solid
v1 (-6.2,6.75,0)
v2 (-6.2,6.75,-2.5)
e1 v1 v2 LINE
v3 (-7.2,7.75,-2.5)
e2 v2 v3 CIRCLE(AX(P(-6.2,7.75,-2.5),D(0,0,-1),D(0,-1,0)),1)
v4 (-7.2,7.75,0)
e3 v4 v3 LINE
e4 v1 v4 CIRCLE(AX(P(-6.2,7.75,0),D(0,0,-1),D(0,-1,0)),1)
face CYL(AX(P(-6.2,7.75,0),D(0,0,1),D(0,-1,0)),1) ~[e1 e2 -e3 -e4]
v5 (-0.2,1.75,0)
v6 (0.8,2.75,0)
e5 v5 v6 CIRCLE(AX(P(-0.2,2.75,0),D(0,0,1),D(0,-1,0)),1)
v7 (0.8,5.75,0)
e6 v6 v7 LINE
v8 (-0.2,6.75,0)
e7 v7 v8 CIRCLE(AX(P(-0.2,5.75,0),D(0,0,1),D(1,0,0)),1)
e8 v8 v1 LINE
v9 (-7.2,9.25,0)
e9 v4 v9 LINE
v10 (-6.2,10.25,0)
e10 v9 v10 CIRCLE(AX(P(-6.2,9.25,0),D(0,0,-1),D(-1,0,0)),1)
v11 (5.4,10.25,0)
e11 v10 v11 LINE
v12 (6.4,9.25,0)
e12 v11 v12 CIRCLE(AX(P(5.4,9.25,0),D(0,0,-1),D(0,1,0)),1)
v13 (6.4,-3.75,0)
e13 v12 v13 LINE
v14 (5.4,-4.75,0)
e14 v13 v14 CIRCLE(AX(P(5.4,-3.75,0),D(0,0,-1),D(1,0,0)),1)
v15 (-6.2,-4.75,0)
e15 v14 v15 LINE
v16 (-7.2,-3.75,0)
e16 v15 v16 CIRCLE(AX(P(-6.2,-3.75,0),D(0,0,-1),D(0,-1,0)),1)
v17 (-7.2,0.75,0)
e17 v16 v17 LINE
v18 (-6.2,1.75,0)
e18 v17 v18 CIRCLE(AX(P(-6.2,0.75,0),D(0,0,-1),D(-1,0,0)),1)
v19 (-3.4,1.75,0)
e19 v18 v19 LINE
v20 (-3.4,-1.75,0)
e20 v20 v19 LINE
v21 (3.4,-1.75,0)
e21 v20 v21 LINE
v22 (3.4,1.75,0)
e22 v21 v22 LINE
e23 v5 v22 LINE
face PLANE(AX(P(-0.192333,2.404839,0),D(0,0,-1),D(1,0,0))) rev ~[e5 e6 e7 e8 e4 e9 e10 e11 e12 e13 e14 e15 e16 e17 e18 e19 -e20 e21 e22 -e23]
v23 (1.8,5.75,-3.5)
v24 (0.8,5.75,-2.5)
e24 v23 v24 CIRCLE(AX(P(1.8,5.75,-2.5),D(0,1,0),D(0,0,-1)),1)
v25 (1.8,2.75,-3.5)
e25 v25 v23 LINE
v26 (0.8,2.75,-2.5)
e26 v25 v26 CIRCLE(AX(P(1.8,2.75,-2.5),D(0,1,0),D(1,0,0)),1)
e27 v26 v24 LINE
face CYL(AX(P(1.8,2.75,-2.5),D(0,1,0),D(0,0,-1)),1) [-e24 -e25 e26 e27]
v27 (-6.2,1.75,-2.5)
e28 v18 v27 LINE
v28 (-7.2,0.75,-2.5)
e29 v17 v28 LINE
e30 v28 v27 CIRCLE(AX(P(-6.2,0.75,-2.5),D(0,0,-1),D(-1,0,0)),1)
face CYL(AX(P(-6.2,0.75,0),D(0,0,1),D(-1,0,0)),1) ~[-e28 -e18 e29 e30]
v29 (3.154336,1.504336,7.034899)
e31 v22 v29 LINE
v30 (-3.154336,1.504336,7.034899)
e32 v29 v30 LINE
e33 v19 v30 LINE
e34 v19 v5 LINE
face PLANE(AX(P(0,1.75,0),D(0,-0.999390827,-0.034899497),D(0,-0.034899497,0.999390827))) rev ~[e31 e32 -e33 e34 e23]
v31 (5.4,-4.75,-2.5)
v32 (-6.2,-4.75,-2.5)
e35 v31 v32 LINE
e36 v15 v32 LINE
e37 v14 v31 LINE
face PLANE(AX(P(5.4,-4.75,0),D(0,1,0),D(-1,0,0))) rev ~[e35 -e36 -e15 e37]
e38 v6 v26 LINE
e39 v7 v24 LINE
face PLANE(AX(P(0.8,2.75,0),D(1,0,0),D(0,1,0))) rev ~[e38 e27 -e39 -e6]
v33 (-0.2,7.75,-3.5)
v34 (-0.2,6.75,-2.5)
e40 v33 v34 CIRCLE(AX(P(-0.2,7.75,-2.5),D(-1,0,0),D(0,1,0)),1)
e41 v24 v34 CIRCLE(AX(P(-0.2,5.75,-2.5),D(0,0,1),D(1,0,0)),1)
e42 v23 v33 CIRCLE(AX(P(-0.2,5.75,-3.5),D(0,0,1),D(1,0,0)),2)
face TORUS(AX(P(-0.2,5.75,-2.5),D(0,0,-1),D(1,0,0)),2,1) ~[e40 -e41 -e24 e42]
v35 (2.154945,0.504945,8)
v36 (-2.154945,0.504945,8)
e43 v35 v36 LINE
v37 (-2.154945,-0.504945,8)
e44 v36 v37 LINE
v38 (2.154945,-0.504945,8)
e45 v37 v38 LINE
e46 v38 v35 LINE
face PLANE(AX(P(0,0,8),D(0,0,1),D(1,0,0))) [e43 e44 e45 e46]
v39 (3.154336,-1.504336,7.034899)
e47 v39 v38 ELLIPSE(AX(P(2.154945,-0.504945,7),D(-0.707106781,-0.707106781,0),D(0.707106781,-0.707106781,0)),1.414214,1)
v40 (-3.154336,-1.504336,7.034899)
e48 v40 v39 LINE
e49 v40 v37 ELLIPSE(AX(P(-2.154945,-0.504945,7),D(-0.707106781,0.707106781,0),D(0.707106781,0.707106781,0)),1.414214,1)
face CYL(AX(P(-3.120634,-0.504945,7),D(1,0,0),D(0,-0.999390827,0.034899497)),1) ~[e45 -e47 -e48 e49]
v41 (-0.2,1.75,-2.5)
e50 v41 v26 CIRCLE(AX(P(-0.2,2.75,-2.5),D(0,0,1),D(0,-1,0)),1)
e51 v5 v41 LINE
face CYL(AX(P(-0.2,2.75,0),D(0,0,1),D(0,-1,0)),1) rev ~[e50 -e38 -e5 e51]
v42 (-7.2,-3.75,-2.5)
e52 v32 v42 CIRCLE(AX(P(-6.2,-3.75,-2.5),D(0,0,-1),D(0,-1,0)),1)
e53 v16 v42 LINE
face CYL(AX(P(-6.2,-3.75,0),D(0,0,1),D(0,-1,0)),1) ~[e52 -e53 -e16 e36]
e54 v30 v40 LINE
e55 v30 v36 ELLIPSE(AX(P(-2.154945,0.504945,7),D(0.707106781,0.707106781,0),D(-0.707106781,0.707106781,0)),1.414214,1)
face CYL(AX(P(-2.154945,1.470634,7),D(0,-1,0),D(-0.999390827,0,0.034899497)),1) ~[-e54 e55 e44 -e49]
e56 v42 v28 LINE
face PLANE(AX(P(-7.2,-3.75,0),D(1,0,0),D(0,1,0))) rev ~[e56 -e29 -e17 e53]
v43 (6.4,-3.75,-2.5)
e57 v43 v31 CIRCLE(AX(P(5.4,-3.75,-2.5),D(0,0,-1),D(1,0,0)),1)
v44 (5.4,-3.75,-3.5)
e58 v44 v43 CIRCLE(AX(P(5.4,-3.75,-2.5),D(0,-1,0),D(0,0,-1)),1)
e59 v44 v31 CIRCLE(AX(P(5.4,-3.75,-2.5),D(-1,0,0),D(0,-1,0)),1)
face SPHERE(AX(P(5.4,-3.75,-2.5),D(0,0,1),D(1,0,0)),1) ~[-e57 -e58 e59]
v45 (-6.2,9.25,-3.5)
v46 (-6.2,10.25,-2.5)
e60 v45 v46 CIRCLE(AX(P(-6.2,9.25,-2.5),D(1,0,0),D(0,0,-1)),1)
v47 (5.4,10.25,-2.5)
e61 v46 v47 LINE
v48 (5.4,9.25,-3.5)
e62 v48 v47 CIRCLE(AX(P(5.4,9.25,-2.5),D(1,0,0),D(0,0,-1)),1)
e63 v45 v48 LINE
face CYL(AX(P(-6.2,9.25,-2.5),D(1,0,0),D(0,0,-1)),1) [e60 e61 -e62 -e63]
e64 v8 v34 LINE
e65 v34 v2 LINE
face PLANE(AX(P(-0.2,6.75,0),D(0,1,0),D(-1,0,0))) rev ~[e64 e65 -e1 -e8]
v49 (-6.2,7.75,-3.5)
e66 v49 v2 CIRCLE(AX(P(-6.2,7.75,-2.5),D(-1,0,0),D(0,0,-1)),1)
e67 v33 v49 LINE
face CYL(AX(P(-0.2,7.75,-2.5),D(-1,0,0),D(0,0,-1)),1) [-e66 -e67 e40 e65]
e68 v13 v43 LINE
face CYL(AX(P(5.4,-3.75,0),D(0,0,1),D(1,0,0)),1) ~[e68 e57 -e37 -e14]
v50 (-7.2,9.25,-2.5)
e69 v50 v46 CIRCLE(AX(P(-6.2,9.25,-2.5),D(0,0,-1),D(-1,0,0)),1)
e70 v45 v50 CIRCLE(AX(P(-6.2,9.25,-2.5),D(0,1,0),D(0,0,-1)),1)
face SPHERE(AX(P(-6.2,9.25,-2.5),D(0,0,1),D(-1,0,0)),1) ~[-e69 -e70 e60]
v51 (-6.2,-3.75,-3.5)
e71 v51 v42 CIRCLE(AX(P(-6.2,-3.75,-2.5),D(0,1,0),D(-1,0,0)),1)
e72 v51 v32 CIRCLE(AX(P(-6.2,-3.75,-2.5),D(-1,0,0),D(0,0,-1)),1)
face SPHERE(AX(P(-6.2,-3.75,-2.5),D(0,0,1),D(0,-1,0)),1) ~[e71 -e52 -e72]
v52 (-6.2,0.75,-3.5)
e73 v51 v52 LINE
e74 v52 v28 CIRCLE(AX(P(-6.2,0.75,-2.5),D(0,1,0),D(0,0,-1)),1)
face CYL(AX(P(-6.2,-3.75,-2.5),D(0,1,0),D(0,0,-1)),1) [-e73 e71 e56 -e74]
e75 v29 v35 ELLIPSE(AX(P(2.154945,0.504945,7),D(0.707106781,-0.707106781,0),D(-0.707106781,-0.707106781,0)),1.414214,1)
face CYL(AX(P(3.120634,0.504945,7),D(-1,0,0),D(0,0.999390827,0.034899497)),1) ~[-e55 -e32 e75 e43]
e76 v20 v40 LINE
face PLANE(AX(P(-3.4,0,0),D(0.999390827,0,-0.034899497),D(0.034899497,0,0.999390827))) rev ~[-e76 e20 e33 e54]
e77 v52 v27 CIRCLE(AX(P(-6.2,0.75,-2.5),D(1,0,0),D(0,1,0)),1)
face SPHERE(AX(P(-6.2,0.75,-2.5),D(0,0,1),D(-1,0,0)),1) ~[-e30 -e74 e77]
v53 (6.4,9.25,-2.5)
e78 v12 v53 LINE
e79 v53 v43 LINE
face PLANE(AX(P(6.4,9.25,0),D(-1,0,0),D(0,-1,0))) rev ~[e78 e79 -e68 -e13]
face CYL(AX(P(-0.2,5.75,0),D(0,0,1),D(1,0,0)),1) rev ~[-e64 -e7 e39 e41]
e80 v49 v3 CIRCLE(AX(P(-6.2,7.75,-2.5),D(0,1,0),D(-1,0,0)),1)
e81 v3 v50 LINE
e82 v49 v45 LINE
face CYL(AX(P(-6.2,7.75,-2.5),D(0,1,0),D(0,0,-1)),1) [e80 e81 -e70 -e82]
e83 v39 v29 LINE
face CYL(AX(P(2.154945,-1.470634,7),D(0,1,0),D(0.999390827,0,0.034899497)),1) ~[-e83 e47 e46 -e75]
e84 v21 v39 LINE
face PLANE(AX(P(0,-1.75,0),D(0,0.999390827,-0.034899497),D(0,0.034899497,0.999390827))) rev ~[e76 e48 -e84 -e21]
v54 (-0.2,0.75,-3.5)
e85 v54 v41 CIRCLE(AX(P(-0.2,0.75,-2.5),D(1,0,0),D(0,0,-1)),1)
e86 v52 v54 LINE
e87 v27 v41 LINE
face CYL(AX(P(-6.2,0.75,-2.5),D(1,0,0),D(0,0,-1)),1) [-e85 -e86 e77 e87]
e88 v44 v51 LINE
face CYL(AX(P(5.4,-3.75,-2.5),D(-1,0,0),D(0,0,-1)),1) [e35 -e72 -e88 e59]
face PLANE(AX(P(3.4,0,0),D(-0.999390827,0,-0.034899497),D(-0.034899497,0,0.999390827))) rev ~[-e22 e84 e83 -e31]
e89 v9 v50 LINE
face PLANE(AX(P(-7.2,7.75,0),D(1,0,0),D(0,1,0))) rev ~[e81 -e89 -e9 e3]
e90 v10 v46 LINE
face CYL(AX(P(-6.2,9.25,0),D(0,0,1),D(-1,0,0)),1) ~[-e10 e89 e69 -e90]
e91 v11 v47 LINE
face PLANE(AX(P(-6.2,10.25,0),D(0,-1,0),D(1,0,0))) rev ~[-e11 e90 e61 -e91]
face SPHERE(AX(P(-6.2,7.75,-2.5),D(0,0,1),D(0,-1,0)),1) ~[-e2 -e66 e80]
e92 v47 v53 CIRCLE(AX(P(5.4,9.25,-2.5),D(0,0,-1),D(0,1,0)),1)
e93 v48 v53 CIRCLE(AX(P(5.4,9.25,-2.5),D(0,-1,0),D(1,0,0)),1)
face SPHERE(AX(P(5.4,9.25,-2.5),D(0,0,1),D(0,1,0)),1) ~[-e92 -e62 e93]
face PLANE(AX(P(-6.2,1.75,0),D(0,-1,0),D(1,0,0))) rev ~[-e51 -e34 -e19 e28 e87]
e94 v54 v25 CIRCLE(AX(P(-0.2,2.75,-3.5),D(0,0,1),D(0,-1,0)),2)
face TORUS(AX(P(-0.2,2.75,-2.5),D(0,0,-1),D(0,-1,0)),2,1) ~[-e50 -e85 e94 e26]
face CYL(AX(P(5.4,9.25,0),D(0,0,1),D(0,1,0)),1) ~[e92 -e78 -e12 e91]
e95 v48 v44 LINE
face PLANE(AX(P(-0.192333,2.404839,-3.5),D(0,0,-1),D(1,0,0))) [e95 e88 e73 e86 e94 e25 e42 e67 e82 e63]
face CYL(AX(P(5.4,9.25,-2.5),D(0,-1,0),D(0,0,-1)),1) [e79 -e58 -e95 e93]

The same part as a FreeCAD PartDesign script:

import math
import FreeCAD as App
import Part
import Sketcher

V = App.Vector


def edges_at(feature, points):
    """Names of the edges that pass closest to the given points."""
    edges = feature.Shape.Edges
    near = lambda p: min(range(len(edges)), key=lambda i: edges[i].distToShape(Part.Vertex(*p))[0])
    return sorted({f"Edge{near(p) + 1}" for p in points})

doc = App.newDocument("Part")
body = doc.addObject("PartDesign::Body", "Body")

# Sketch on XY plane
sketch1 = doc.addObject("Sketcher::SketchObject", "Sketch")
body.addObject(sketch1)
sketch1.AttachmentSupport = (doc.XY_Plane, [""])
sketch1.MapMode = "FlatFace"
sketch1.addGeometry(Part.LineSegment(V(-3.4, 1.75, 0), V(-3.4, -1.75, 0)), False)
sketch1.addGeometry(Part.LineSegment(V(-3.4, -1.75, 0), V(3.4, -1.75, 0)), False)
sketch1.addGeometry(Part.LineSegment(V(3.4, -1.75, 0), V(3.4, 1.75, 0)), False)
sketch1.addGeometry(Part.LineSegment(V(3.4, 1.75, 0), V(-3.4, 1.75, 0)), False)
sketch1.addConstraint(Sketcher.Constraint("Coincident", 0, 2, 1, 1))
sketch1.addConstraint(Sketcher.Constraint("Coincident", 1, 2, 2, 1))
sketch1.addConstraint(Sketcher.Constraint("Coincident", 2, 2, 3, 1))
sketch1.addConstraint(Sketcher.Constraint("Coincident", 3, 2, 0, 1))
sketch1.addConstraint(Sketcher.Constraint("Vertical", 0))
sketch1.addConstraint(Sketcher.Constraint("Horizontal", 1))
sketch1.addConstraint(Sketcher.Constraint("Vertical", 2))
sketch1.addConstraint(Sketcher.Constraint("Horizontal", 3))
sketch1.addConstraint(Sketcher.Constraint("Symmetric", 0, 2, 2, 2, -1, 1))
sketch1.addConstraint(Sketcher.Constraint("DistanceX", 1, 1, 1, 2, 6.8))
sketch1.addConstraint(Sketcher.Constraint("DistanceY", 0, 2, 0, 1, 3.5))
pad1 = doc.addObject("PartDesign::Pad", "Pad")
body.addObject(pad1)
pad1.Profile = sketch1
pad1.Length = 8
pad1.TaperAngle = -2

# Sketch on XY plane
sketch2 = doc.addObject("Sketcher::SketchObject", "Sketch001")
body.addObject(sketch2)
sketch2.AttachmentSupport = (doc.XY_Plane, [""])
sketch2.MapMode = "FlatFace"
sketch2.addGeometry(Part.ArcOfCircle(Part.Circle(V(-0.2, 2.75, 0), V(0, 0, 1), 1), math.radians(-90), math.radians(0)), False)
sketch2.addGeometry(Part.LineSegment(V(0.8, 2.75, 0), V(0.8, 5.75, 0)), False)
sketch2.addGeometry(Part.ArcOfCircle(Part.Circle(V(-0.2, 5.75, 0), V(0, 0, 1), 1), math.radians(0), math.radians(90)), False)
sketch2.addGeometry(Part.LineSegment(V(-0.2, 6.75, 0), V(-6.2, 6.75, 0)), False)
sketch2.addGeometry(Part.ArcOfCircle(Part.Circle(V(-6.2, 7.75, 0), V(0, 0, 1), 1), math.radians(180), math.radians(270)), False)
sketch2.addGeometry(Part.LineSegment(V(-7.2, 7.75, 0), V(-7.2, 9.25, 0)), False)
sketch2.addGeometry(Part.ArcOfCircle(Part.Circle(V(-6.2, 9.25, 0), V(0, 0, 1), 1), math.radians(90), math.radians(180)), False)
sketch2.addGeometry(Part.LineSegment(V(-6.2, 10.25, 0), V(5.4, 10.25, 0)), False)
sketch2.addGeometry(Part.ArcOfCircle(Part.Circle(V(5.4, 9.25, 0), V(0, 0, 1), 1), math.radians(0), math.radians(90)), False)
sketch2.addGeometry(Part.LineSegment(V(6.4, 9.25, 0), V(6.4, -3.75, 0)), False)
sketch2.addGeometry(Part.ArcOfCircle(Part.Circle(V(5.4, -3.75, 0), V(0, 0, 1), 1), math.radians(-90), math.radians(0)), False)
sketch2.addGeometry(Part.LineSegment(V(5.4, -4.75, 0), V(-6.2, -4.75, 0)), False)
sketch2.addGeometry(Part.ArcOfCircle(Part.Circle(V(-6.2, -3.75, 0), V(0, 0, 1), 1), math.radians(180), math.radians(270)), False)
sketch2.addGeometry(Part.LineSegment(V(-7.2, -3.75, 0), V(-7.2, 0.75, 0)), False)
sketch2.addGeometry(Part.ArcOfCircle(Part.Circle(V(-6.2, 0.75, 0), V(0, 0, 1), 1), math.radians(90), math.radians(180)), False)
sketch2.addGeometry(Part.LineSegment(V(-6.2, 1.75, 0), V(-0.2, 1.75, 0)), False)
sketch2.addConstraint(Sketcher.Constraint("Tangent", 0, 2, 1, 1))
sketch2.addConstraint(Sketcher.Constraint("Tangent", 1, 2, 2, 1))
sketch2.addConstraint(Sketcher.Constraint("Tangent", 2, 2, 3, 1))
sketch2.addConstraint(Sketcher.Constraint("Tangent", 3, 2, 4, 2))
sketch2.addConstraint(Sketcher.Constraint("Tangent", 4, 1, 5, 1))
sketch2.addConstraint(Sketcher.Constraint("Tangent", 5, 2, 6, 2))
sketch2.addConstraint(Sketcher.Constraint("Tangent", 6, 1, 7, 1))
sketch2.addConstraint(Sketcher.Constraint("Tangent", 7, 2, 8, 2))
sketch2.addConstraint(Sketcher.Constraint("Tangent", 8, 1, 9, 1))
sketch2.addConstraint(Sketcher.Constraint("Tangent", 9, 2, 10, 2))
sketch2.addConstraint(Sketcher.Constraint("Tangent", 10, 1, 11, 1))
sketch2.addConstraint(Sketcher.Constraint("Tangent", 11, 2, 12, 2))
sketch2.addConstraint(Sketcher.Constraint("Tangent", 12, 1, 13, 1))
sketch2.addConstraint(Sketcher.Constraint("Tangent", 13, 2, 14, 2))
sketch2.addConstraint(Sketcher.Constraint("Tangent", 14, 1, 15, 1))
sketch2.addConstraint(Sketcher.Constraint("Tangent", 15, 2, 0, 1))
sketch2.addConstraint(Sketcher.Constraint("Vertical", 1))
sketch2.addConstraint(Sketcher.Constraint("Horizontal", 3))
sketch2.addConstraint(Sketcher.Constraint("Vertical", 5))
sketch2.addConstraint(Sketcher.Constraint("Horizontal", 7))
sketch2.addConstraint(Sketcher.Constraint("Vertical", 9))
sketch2.addConstraint(Sketcher.Constraint("Horizontal", 11))
sketch2.addConstraint(Sketcher.Constraint("Vertical", 13))
sketch2.addConstraint(Sketcher.Constraint("Horizontal", 15))
sketch2.addConstraint(Sketcher.Constraint("Equal", 0, 2))
sketch2.addConstraint(Sketcher.Constraint("Equal", 2, 4))
sketch2.addConstraint(Sketcher.Constraint("Equal", 4, 6))
sketch2.addConstraint(Sketcher.Constraint("Equal", 6, 8))
sketch2.addConstraint(Sketcher.Constraint("Equal", 8, 10))
sketch2.addConstraint(Sketcher.Constraint("Equal", 10, 12))
sketch2.addConstraint(Sketcher.Constraint("Equal", 12, 14))
sketch2.addConstraint(Sketcher.Constraint("Vertical", 6, 3, 12, 3))
sketch2.addConstraint(Sketcher.Constraint("Radius", 0, 1.0))
sketch2.addConstraint(Sketcher.Constraint("DistanceX", 3, 2, 3, 1, 6.0))
sketch2.addConstraint(Sketcher.Constraint("DistanceY", 1, 1, 1, 2, 3.0))
sketch2.addConstraint(Sketcher.Constraint("DistanceY", 9, 2, 9, 1, 13.0))
sketch2.addConstraint(Sketcher.Constraint("DistanceX", 7, 1, 7, 2, 11.6))
sketch2.addConstraint(Sketcher.Constraint("DistanceY", 5, 1, 5, 2, 1.5))
sketch2.addConstraint(Sketcher.Constraint("DistanceX", 0, 3, -1, 1, 0.2))
sketch2.addConstraint(Sketcher.Constraint("DistanceY", -1, 1, 0, 3, 2.75))
pad2 = doc.addObject("PartDesign::Pad", "Pad001")
body.addObject(pad2)
pad2.Profile = sketch2
pad2.Length = 3.5
pad2.Reversed = True
doc.recompute()

fillet = doc.addObject("PartDesign::Fillet", "Fillet")
body.addObject(fillet)
fillet.Base = (pad2, edges_at(pad2, [
    (-0.4, 10.25, -3.5),
    (0, 1.471, 8),
    (0, -1.471, 8),
    (-3.121, 0, 8),
    (3.121, 0, 8),
]))
fillet.Radius = 1

doc.recompute()
